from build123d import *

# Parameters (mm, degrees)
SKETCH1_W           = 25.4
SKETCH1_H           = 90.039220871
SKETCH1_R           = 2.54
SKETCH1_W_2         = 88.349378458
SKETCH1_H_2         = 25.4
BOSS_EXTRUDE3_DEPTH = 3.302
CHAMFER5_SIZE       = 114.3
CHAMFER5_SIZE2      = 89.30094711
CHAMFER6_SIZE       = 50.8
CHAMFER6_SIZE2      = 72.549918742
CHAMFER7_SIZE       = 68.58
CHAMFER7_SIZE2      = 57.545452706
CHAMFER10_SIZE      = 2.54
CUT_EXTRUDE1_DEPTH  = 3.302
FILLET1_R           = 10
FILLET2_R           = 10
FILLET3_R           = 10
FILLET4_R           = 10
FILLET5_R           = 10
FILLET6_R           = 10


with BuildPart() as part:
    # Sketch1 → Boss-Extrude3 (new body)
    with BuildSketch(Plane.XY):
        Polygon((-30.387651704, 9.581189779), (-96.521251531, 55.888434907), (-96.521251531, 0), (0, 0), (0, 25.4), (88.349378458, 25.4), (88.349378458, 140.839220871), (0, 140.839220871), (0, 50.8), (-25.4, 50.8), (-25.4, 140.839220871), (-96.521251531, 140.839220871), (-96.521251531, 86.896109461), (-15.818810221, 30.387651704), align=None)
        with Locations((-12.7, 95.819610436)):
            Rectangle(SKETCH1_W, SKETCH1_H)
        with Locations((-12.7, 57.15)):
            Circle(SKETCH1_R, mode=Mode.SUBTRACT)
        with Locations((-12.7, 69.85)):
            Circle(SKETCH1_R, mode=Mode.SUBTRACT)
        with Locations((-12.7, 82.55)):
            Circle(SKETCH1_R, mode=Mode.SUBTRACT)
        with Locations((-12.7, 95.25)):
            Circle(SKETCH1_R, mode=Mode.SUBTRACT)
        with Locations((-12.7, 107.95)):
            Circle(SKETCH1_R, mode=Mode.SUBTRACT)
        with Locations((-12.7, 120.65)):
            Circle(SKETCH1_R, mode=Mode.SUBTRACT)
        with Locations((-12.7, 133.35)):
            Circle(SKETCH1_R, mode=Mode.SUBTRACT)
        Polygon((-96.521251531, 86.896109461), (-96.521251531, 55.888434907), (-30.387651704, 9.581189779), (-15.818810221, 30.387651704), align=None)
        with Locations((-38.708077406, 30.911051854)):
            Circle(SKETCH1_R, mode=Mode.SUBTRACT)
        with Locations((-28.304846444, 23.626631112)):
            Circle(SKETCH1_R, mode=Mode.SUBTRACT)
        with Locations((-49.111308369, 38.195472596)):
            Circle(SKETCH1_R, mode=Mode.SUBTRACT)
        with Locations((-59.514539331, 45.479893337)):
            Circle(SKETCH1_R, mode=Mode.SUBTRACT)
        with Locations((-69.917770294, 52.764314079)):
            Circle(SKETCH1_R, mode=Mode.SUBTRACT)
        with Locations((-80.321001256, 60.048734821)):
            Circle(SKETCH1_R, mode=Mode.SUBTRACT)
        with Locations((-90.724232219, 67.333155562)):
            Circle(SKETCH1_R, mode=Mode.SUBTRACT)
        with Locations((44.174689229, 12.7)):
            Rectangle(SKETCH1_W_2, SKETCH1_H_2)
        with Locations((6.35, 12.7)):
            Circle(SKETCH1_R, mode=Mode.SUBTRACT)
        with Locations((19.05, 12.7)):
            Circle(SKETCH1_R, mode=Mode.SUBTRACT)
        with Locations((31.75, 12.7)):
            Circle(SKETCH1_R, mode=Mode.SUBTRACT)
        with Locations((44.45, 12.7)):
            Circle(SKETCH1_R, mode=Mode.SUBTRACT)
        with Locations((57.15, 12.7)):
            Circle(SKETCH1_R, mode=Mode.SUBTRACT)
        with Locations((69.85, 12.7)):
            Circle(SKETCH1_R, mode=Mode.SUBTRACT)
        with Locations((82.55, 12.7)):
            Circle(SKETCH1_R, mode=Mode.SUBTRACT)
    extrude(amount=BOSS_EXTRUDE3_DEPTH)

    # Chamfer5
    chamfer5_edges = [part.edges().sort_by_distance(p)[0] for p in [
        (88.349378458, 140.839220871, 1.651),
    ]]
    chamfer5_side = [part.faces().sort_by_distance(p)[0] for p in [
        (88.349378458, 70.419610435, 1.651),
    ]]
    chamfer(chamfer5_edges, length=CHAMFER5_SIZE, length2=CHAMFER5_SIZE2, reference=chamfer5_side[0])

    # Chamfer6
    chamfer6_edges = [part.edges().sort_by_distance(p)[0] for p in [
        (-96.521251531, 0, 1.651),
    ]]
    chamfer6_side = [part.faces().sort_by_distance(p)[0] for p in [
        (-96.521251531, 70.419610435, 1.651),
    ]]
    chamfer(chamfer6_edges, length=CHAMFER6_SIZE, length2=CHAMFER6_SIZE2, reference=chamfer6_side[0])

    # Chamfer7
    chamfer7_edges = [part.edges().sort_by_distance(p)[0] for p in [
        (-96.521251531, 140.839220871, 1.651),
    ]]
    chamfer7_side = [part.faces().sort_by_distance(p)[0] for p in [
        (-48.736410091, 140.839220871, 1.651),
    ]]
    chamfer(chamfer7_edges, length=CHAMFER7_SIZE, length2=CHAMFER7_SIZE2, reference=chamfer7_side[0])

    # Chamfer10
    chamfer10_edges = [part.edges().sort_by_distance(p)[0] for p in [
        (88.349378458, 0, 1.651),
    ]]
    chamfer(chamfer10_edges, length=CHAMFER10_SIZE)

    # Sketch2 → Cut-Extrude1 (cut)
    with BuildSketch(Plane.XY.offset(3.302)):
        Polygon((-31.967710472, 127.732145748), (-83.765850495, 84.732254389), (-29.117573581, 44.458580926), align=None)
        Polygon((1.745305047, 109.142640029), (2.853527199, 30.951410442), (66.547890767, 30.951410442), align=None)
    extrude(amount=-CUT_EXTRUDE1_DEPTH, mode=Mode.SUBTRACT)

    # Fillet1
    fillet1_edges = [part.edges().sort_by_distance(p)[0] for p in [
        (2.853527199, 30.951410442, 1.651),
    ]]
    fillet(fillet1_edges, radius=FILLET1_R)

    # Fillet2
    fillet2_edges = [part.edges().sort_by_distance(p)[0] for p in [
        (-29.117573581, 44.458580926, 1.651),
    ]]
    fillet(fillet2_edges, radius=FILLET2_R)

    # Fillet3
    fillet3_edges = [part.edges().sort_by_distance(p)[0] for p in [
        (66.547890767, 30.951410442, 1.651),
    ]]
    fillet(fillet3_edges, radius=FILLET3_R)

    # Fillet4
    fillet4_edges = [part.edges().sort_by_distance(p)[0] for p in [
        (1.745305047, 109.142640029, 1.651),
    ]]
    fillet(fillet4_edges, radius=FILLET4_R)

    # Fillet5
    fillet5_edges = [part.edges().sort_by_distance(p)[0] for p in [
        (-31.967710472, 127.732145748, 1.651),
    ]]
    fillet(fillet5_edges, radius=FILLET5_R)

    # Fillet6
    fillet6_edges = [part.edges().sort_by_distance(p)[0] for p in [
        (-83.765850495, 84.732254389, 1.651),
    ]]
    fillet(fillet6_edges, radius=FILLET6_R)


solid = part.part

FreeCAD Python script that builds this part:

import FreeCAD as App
import Part
import Sketcher
Q = App.Units.Quantity


def edges_at(feature, points):
    """Names of the edges that pass closest to the given points."""
    edges = feature.Shape.Edges
    near = lambda p: min(range(len(edges)), key=lambda i: edges[i].distToShape(Part.Vertex(*p))[0])
    return sorted({f"Edge{near(p) + 1}" for p in points})


def add_polygon(sketch, points):
    """Adds a closed chain of lines whose ends are joined by coincident constraints."""
    first, n = sketch.GeometryCount, len(points)
    for a, b in zip(points, points[1:] + points[:1]):
        sketch.addGeometry(Part.LineSegment(App.Vector(*a, 0), App.Vector(*b, 0)), False)
    for i in range(n):
        sketch.addConstraint(Sketcher.Constraint("Coincident", first + i, 2, first + (i + 1) % n, 1))

doc = App.newDocument("Part")
body = doc.addObject("PartDesign::Body", "Body")

# Sketch on XY plane
sketch1 = body.newObject("Sketcher::SketchObject", "Sketch")
sketch1.AttachmentSupport = (doc.getObject("XY_Plane"), [""])
sketch1.MapMode = "FlatFace"
add_polygon(sketch1, [(-96.5, 0), (88.3, 0), (88.3, 140.8), (0, 140.8), (-25.4, 140.8), (-96.5, 140.8)])  # lines 0-5
sketch1.addGeometry(Part.Circle(App.Vector(-49.1, 38.2, 0), App.Vector(0, 0, 1), 2.5), False)  # 6
sketch1.addGeometry(Part.Circle(App.Vector(-28.3, 23.6, 0), App.Vector(0, 0, 1), 2.5), False)  # 7
sketch1.addGeometry(Part.Circle(App.Vector(-38.7, 30.9, 0), App.Vector(0, 0, 1), 2.5), False)  # 8
sketch1.addGeometry(Part.Circle(App.Vector(-59.5, 45.5, 0), App.Vector(0, 0, 1), 2.5), False)  # 9
sketch1.addGeometry(Part.Circle(App.Vector(-69.9, 52.8, 0), App.Vector(0, 0, 1), 2.5), False)  # 10
sketch1.addGeometry(Part.Circle(App.Vector(-80.3, 60, 0), App.Vector(0, 0, 1), 2.5), False)  # 11
sketch1.addGeometry(Part.Circle(App.Vector(-90.7, 67.3, 0), App.Vector(0, 0, 1), 2.5), False)  # 12
sketch1.addGeometry(Part.Circle(App.Vector(-12.7, 57.1, 0), App.Vector(0, 0, 1), 2.5), False)  # 13
sketch1.addGeometry(Part.Circle(App.Vector(-12.7, 69.8, 0), App.Vector(0, 0, 1), 2.5), False)  # 14
sketch1.addGeometry(Part.Circle(App.Vector(6.3, 12.7, 0), App.Vector(0, 0, 1), 2.5), False)  # 15
sketch1.addGeometry(Part.Circle(App.Vector(19.1, 12.7, 0), App.Vector(0, 0, 1), 2.5), False)  # 16
sketch1.addGeometry(Part.Circle(App.Vector(31.8, 12.7, 0), App.Vector(0, 0, 1), 2.5), False)  # 17
sketch1.addGeometry(Part.Circle(App.Vector(44.5, 12.7, 0), App.Vector(0, 0, 1), 2.5), False)  # 18
sketch1.addGeometry(Part.Circle(App.Vector(57.1, 12.7, 0), App.Vector(0, 0, 1), 2.5), False)  # 19
sketch1.addGeometry(Part.Circle(App.Vector(69.8, 12.7, 0), App.Vector(0, 0, 1), 2.5), False)  # 20
sketch1.addGeometry(Part.Circle(App.Vector(82.5, 12.7, 0), App.Vector(0, 0, 1), 2.5), False)  # 21
sketch1.addGeometry(Part.Circle(App.Vector(-12.7, 82.5, 0), App.Vector(0, 0, 1), 2.5), False)  # 22
sketch1.addGeometry(Part.Circle(App.Vector(-12.7, 95.2, 0), App.Vector(0, 0, 1), 2.5), False)  # 23
sketch1.addGeometry(Part.Circle(App.Vector(-12.7, 108, 0), App.Vector(0, 0, 1), 2.5), False)  # 24
sketch1.addGeometry(Part.Circle(App.Vector(-12.7, 120.7, 0), App.Vector(0, 0, 1), 2.5), False)  # 25
sketch1.addGeometry(Part.Circle(App.Vector(-12.7, 133.3, 0), App.Vector(0, 0, 1), 2.5), False)  # 26
sketch1.addConstraint([
    Sketcher.Constraint("Horizontal", 0),
    Sketcher.Constraint("Vertical", 1),
    Sketcher.Constraint("Horizontal", 2),
    Sketcher.Constraint("Horizontal", 3),
    Sketcher.Constraint("Horizontal", 4),
    Sketcher.Constraint("Vertical", 5),
    Sketcher.Constraint("Equal", 6, 7),
    Sketcher.Constraint("Equal", 7, 8),
    Sketcher.Constraint("Equal", 8, 9),
    Sketcher.Constraint("Equal", 9, 10),
    Sketcher.Constraint("Equal", 10, 11),
    Sketcher.Constraint("Equal", 11, 12),
    Sketcher.Constraint("Equal", 12, 13),
    Sketcher.Constraint("Equal", 13, 14),
    Sketcher.Constraint("Equal", 14, 15),
    Sketcher.Constraint("Equal", 15, 16),
    Sketcher.Constraint("Equal", 16, 17),
    Sketcher.Constraint("Equal", 17, 18),
    Sketcher.Constraint("Equal", 18, 19),
    Sketcher.Constraint("Equal", 19, 20),
    Sketcher.Constraint("Equal", 20, 21),
    Sketcher.Constraint("Equal", 21, 22),
    Sketcher.Constraint("Equal", 22, 23),
    Sketcher.Constraint("Equal", 23, 24),
    Sketcher.Constraint("Equal", 24, 25),
    Sketcher.Constraint("Equal", 25, 26),
    Sketcher.Constraint("PointOnObject", 0, 2, -1),
    Sketcher.Constraint("PointOnObject", 2, 2, -2),
    Sketcher.Constraint("Horizontal", 15, 3, 16, 3),
    Sketcher.Constraint("Horizontal", 16, 3, 17, 3),
    Sketcher.Constraint("Horizontal", 17, 3, 18, 3),
    Sketcher.Constraint("Horizontal", 18, 3, 19, 3),
    Sketcher.Constraint("Horizontal", 19, 3, 20, 3),
    Sketcher.Constraint("Horizontal", 20, 3, 21, 3),
    Sketcher.Constraint("Vertical", 13, 3, 14, 3),
    Sketcher.Constraint("Vertical", 14, 3, 22, 3),
    Sketcher.Constraint("Vertical", 22, 3, 23, 3),
    Sketcher.Constraint("Vertical", 23, 3, 24, 3),
    Sketcher.Constraint("Vertical", 24, 3, 25, 3),
    Sketcher.Constraint("Vertical", 25, 3, 26, 3),
    Sketcher.Constraint("Diameter", 6, Q("0.2 in")),
    Sketcher.Constraint("DistanceX", 3, 2, 3, 1, Q("1 in")),
    Sketcher.Constraint("DistanceX", 15, 3, 17, 3, Q("1 in")),
    Sketcher.Constraint("DistanceX", 16, 3, 18, 3, Q("1 in")),
    Sketcher.Constraint("DistanceX", 17, 3, 19, 3, Q("1 in")),
    Sketcher.Constraint("DistanceX", 18, 3, 20, 3, Q("1 in")),
    Sketcher.Constraint("DistanceX", 19, 3, 21, 3, Q("1 in")),
    Sketcher.Constraint("DistanceY", 13, 3, 22, 3, Q("1 in")),
    Sketcher.Constraint("DistanceY", 14, 3, 23, 3, Q("1 in")),
    Sketcher.Constraint("DistanceY", 22, 3, 24, 3, Q("1 in")),
    Sketcher.Constraint("DistanceY", 23, 3, 25, 3, Q("1 in")),
    Sketcher.Constraint("DistanceY", 24, 3, 26, 3, Q("1 in")),
    Sketcher.Constraint("DistanceX", 13, 3, -1, 1, Q("0.5 in")),
    Sketcher.Constraint("DistanceY", -1, 1, 15, 3, Q("0.5 in")),
    Sketcher.Constraint("DistanceY", 13, 3, 14, 3, Q("0.5 in")),
    Sketcher.Constraint("DistanceX", 15, 3, 16, 3, Q("0.5 in")),
    Sketcher.Constraint("DistanceY", -1, 1, 13, 3, Q("2.25 in")),
    Sketcher.Constraint("DistanceX", -1, 1, 15, 3, Q("0.25 in")),
    Sketcher.Constraint("DistanceX", 0, 1, 0, 2, 184.87063),
    Sketcher.Constraint("DistanceX", 2, 2, 2, 1, 88.349378),
    Sketcher.Constraint("DistanceY", 1, 1, 1, 2, 140.839221),
    Sketcher.Constraint("DistanceX", 11, 3, -1, 1, 80.321001),
    Sketcher.Constraint("DistanceX", 6, 3, -1, 1, 49.111308),
    Sketcher.Constraint("DistanceY", -1, 1, 7, 3, 23.626631),
    Sketcher.Constraint("DistanceY", -1, 1, 8, 3, 30.911052),
    Sketcher.Constraint("DistanceX", 9, 3, -1, 1, 59.514539),
    Sketcher.Constraint("DistanceX", 10, 3, -1, 1, 69.91777),
    Sketcher.Constraint("DistanceX", 6, 3, 7, 3, 20.806462),
    Sketcher.Constraint("DistanceY", 7, 3, 6, 3, 14.568841),
    Sketcher.Constraint("DistanceX", 8, 3, 7, 3, 10.403231),
    Sketcher.Constraint("DistanceY", 6, 3, 9, 3, 7.284421),
    Sketcher.Constraint("DistanceY", 9, 3, 10, 3, 7.284421),
    Sketcher.Constraint("DistanceY", 10, 3, 11, 3, 7.284421),
    Sketcher.Constraint("DistanceX", 12, 3, 11, 3, 10.403231),
    Sketcher.Constraint("DistanceY", 11, 3, 12, 3, 7.284421),
])
pad1 = body.newObject("PartDesign::Pad", "Pad")
pad1.Profile = sketch1
pad1.Length = Q("0.13 in")
doc.recompute()

chamfer = body.newObject("PartDesign::Chamfer", "Chamfer")
chamfer.Base = (pad1, edges_at(pad1, [(88.349, 140.839, 1.651)]))
chamfer.ChamferType = "Two distances"
chamfer.Size = Q("4.5 in")
chamfer.Size2 = 89.300947
doc.recompute()

chamfer2 = body.newObject("PartDesign::Chamfer", "Chamfer001")
chamfer2.Base = (chamfer, edges_at(chamfer, [(-96.521, 0, 1.651)]))
chamfer2.ChamferType = "Two distances"
chamfer2.Size = Q("2 in")
chamfer2.Size2 = 72.549919
chamfer2.FlipDirection = True
doc.recompute()

chamfer3 = body.newObject("PartDesign::Chamfer", "Chamfer002")
chamfer3.Base = (chamfer2, edges_at(chamfer2, [(-96.521, 140.839, 1.651)]))
chamfer3.ChamferType = "Two distances"
chamfer3.Size = Q("2.7 in")
chamfer3.Size2 = 57.545453
chamfer3.FlipDirection = True
doc.recompute()

chamfer4 = body.newObject("PartDesign::Chamfer", "Chamfer003")
chamfer4.Base = (chamfer3, edges_at(chamfer3, [(88.349, 0, 1.651)]))
chamfer4.Size = Q("0.1 in")

# Sketch on XY plane
sketch2 = body.newObject("Sketcher::SketchObject", "Sketch001")
sketch2.AttachmentSupport = (doc.getObject("XY_Plane"), [""])
sketch2.MapMode = "FlatFace"
sketch2.AttachmentOffset = App.Placement(App.Vector(0, 0, 0.13 * 25.4), App.Rotation())
add_polygon(sketch2, [(-32, 128), (-84, 85), (-29, 44)])  # lines 0-2
add_polygon(sketch2, [(2, 109), (3, 31), (67, 31)])  # lines 3-5
sketch2.addConstraint([
    Sketcher.Constraint("Horizontal", 4),
    Sketcher.Constraint("DistanceX", 1, 2, 3, 2, 31.971101),
    Sketcher.Constraint("DistanceX", 2, 2, 4, 2, 98.515601),
    Sketcher.Constraint("Distance", 1, 67.885219),
    Sketcher.Constraint("Distance", 5, 101.554141),
    Sketcher.Constraint("DistanceX", 4, 1, 4, 2, 63.694364),
    Sketcher.Constraint("DistanceX", 0, 2, -1, 1, 83.76585),
    Sketcher.Constraint("DistanceY", -1, 1, 1, 2, 44.458581),
    Sketcher.Constraint("DistanceX", 2, 2, -1, 1, 31.96771),
    Sketcher.Constraint("DistanceY", -1, 1, 3, 2, 30.95141),
    Sketcher.Constraint("DistanceY", -1, 1, 5, 2, 109.14264),
    Sketcher.Constraint("DistanceY", 0, 2, 2, 2, 42.999891),
])
pocket1 = body.newObject("PartDesign::Pocket", "Pocket")
pocket1.Profile = sketch2
pocket1.Length = Q("0.13 in")
doc.recompute()

fillet = body.newObject("PartDesign::Fillet", "Fillet")
fillet.Base = (pocket1, edges_at(pocket1, [(2.854, 30.951, 1.651)]))
fillet.Radius = 10
doc.recompute()

fillet2 = body.newObject("PartDesign::Fillet", "Fillet001")
fillet2.Base = (fillet, edges_at(fillet, [(-29.118, 44.459, 1.651)]))
fillet2.Radius = 10
doc.recompute()

fillet3 = body.newObject("PartDesign::Fillet", "Fillet002")
fillet3.Base = (fillet2, edges_at(fillet2, [(66.548, 30.951, 1.651)]))
fillet3.Radius = 10
doc.recompute()

fillet4 = body.newObject("PartDesign::Fillet", "Fillet003")
fillet4.Base = (fillet3, edges_at(fillet3, [(1.745, 109.143, 1.651)]))
fillet4.Radius = 10
doc.recompute()

fillet5 = body.newObject("PartDesign::Fillet", "Fillet004")
fillet5.Base = (fillet4, edges_at(fillet4, [(-31.968, 127.732, 1.651)]))
fillet5.Radius = 10
doc.recompute()

fillet6 = body.newObject("PartDesign::Fillet", "Fillet005")
fillet6.Base = (fillet5, edges_at(fillet5, [(-83.766, 84.732, 1.651)]))
fillet6.Radius = 10

doc.recompute()
